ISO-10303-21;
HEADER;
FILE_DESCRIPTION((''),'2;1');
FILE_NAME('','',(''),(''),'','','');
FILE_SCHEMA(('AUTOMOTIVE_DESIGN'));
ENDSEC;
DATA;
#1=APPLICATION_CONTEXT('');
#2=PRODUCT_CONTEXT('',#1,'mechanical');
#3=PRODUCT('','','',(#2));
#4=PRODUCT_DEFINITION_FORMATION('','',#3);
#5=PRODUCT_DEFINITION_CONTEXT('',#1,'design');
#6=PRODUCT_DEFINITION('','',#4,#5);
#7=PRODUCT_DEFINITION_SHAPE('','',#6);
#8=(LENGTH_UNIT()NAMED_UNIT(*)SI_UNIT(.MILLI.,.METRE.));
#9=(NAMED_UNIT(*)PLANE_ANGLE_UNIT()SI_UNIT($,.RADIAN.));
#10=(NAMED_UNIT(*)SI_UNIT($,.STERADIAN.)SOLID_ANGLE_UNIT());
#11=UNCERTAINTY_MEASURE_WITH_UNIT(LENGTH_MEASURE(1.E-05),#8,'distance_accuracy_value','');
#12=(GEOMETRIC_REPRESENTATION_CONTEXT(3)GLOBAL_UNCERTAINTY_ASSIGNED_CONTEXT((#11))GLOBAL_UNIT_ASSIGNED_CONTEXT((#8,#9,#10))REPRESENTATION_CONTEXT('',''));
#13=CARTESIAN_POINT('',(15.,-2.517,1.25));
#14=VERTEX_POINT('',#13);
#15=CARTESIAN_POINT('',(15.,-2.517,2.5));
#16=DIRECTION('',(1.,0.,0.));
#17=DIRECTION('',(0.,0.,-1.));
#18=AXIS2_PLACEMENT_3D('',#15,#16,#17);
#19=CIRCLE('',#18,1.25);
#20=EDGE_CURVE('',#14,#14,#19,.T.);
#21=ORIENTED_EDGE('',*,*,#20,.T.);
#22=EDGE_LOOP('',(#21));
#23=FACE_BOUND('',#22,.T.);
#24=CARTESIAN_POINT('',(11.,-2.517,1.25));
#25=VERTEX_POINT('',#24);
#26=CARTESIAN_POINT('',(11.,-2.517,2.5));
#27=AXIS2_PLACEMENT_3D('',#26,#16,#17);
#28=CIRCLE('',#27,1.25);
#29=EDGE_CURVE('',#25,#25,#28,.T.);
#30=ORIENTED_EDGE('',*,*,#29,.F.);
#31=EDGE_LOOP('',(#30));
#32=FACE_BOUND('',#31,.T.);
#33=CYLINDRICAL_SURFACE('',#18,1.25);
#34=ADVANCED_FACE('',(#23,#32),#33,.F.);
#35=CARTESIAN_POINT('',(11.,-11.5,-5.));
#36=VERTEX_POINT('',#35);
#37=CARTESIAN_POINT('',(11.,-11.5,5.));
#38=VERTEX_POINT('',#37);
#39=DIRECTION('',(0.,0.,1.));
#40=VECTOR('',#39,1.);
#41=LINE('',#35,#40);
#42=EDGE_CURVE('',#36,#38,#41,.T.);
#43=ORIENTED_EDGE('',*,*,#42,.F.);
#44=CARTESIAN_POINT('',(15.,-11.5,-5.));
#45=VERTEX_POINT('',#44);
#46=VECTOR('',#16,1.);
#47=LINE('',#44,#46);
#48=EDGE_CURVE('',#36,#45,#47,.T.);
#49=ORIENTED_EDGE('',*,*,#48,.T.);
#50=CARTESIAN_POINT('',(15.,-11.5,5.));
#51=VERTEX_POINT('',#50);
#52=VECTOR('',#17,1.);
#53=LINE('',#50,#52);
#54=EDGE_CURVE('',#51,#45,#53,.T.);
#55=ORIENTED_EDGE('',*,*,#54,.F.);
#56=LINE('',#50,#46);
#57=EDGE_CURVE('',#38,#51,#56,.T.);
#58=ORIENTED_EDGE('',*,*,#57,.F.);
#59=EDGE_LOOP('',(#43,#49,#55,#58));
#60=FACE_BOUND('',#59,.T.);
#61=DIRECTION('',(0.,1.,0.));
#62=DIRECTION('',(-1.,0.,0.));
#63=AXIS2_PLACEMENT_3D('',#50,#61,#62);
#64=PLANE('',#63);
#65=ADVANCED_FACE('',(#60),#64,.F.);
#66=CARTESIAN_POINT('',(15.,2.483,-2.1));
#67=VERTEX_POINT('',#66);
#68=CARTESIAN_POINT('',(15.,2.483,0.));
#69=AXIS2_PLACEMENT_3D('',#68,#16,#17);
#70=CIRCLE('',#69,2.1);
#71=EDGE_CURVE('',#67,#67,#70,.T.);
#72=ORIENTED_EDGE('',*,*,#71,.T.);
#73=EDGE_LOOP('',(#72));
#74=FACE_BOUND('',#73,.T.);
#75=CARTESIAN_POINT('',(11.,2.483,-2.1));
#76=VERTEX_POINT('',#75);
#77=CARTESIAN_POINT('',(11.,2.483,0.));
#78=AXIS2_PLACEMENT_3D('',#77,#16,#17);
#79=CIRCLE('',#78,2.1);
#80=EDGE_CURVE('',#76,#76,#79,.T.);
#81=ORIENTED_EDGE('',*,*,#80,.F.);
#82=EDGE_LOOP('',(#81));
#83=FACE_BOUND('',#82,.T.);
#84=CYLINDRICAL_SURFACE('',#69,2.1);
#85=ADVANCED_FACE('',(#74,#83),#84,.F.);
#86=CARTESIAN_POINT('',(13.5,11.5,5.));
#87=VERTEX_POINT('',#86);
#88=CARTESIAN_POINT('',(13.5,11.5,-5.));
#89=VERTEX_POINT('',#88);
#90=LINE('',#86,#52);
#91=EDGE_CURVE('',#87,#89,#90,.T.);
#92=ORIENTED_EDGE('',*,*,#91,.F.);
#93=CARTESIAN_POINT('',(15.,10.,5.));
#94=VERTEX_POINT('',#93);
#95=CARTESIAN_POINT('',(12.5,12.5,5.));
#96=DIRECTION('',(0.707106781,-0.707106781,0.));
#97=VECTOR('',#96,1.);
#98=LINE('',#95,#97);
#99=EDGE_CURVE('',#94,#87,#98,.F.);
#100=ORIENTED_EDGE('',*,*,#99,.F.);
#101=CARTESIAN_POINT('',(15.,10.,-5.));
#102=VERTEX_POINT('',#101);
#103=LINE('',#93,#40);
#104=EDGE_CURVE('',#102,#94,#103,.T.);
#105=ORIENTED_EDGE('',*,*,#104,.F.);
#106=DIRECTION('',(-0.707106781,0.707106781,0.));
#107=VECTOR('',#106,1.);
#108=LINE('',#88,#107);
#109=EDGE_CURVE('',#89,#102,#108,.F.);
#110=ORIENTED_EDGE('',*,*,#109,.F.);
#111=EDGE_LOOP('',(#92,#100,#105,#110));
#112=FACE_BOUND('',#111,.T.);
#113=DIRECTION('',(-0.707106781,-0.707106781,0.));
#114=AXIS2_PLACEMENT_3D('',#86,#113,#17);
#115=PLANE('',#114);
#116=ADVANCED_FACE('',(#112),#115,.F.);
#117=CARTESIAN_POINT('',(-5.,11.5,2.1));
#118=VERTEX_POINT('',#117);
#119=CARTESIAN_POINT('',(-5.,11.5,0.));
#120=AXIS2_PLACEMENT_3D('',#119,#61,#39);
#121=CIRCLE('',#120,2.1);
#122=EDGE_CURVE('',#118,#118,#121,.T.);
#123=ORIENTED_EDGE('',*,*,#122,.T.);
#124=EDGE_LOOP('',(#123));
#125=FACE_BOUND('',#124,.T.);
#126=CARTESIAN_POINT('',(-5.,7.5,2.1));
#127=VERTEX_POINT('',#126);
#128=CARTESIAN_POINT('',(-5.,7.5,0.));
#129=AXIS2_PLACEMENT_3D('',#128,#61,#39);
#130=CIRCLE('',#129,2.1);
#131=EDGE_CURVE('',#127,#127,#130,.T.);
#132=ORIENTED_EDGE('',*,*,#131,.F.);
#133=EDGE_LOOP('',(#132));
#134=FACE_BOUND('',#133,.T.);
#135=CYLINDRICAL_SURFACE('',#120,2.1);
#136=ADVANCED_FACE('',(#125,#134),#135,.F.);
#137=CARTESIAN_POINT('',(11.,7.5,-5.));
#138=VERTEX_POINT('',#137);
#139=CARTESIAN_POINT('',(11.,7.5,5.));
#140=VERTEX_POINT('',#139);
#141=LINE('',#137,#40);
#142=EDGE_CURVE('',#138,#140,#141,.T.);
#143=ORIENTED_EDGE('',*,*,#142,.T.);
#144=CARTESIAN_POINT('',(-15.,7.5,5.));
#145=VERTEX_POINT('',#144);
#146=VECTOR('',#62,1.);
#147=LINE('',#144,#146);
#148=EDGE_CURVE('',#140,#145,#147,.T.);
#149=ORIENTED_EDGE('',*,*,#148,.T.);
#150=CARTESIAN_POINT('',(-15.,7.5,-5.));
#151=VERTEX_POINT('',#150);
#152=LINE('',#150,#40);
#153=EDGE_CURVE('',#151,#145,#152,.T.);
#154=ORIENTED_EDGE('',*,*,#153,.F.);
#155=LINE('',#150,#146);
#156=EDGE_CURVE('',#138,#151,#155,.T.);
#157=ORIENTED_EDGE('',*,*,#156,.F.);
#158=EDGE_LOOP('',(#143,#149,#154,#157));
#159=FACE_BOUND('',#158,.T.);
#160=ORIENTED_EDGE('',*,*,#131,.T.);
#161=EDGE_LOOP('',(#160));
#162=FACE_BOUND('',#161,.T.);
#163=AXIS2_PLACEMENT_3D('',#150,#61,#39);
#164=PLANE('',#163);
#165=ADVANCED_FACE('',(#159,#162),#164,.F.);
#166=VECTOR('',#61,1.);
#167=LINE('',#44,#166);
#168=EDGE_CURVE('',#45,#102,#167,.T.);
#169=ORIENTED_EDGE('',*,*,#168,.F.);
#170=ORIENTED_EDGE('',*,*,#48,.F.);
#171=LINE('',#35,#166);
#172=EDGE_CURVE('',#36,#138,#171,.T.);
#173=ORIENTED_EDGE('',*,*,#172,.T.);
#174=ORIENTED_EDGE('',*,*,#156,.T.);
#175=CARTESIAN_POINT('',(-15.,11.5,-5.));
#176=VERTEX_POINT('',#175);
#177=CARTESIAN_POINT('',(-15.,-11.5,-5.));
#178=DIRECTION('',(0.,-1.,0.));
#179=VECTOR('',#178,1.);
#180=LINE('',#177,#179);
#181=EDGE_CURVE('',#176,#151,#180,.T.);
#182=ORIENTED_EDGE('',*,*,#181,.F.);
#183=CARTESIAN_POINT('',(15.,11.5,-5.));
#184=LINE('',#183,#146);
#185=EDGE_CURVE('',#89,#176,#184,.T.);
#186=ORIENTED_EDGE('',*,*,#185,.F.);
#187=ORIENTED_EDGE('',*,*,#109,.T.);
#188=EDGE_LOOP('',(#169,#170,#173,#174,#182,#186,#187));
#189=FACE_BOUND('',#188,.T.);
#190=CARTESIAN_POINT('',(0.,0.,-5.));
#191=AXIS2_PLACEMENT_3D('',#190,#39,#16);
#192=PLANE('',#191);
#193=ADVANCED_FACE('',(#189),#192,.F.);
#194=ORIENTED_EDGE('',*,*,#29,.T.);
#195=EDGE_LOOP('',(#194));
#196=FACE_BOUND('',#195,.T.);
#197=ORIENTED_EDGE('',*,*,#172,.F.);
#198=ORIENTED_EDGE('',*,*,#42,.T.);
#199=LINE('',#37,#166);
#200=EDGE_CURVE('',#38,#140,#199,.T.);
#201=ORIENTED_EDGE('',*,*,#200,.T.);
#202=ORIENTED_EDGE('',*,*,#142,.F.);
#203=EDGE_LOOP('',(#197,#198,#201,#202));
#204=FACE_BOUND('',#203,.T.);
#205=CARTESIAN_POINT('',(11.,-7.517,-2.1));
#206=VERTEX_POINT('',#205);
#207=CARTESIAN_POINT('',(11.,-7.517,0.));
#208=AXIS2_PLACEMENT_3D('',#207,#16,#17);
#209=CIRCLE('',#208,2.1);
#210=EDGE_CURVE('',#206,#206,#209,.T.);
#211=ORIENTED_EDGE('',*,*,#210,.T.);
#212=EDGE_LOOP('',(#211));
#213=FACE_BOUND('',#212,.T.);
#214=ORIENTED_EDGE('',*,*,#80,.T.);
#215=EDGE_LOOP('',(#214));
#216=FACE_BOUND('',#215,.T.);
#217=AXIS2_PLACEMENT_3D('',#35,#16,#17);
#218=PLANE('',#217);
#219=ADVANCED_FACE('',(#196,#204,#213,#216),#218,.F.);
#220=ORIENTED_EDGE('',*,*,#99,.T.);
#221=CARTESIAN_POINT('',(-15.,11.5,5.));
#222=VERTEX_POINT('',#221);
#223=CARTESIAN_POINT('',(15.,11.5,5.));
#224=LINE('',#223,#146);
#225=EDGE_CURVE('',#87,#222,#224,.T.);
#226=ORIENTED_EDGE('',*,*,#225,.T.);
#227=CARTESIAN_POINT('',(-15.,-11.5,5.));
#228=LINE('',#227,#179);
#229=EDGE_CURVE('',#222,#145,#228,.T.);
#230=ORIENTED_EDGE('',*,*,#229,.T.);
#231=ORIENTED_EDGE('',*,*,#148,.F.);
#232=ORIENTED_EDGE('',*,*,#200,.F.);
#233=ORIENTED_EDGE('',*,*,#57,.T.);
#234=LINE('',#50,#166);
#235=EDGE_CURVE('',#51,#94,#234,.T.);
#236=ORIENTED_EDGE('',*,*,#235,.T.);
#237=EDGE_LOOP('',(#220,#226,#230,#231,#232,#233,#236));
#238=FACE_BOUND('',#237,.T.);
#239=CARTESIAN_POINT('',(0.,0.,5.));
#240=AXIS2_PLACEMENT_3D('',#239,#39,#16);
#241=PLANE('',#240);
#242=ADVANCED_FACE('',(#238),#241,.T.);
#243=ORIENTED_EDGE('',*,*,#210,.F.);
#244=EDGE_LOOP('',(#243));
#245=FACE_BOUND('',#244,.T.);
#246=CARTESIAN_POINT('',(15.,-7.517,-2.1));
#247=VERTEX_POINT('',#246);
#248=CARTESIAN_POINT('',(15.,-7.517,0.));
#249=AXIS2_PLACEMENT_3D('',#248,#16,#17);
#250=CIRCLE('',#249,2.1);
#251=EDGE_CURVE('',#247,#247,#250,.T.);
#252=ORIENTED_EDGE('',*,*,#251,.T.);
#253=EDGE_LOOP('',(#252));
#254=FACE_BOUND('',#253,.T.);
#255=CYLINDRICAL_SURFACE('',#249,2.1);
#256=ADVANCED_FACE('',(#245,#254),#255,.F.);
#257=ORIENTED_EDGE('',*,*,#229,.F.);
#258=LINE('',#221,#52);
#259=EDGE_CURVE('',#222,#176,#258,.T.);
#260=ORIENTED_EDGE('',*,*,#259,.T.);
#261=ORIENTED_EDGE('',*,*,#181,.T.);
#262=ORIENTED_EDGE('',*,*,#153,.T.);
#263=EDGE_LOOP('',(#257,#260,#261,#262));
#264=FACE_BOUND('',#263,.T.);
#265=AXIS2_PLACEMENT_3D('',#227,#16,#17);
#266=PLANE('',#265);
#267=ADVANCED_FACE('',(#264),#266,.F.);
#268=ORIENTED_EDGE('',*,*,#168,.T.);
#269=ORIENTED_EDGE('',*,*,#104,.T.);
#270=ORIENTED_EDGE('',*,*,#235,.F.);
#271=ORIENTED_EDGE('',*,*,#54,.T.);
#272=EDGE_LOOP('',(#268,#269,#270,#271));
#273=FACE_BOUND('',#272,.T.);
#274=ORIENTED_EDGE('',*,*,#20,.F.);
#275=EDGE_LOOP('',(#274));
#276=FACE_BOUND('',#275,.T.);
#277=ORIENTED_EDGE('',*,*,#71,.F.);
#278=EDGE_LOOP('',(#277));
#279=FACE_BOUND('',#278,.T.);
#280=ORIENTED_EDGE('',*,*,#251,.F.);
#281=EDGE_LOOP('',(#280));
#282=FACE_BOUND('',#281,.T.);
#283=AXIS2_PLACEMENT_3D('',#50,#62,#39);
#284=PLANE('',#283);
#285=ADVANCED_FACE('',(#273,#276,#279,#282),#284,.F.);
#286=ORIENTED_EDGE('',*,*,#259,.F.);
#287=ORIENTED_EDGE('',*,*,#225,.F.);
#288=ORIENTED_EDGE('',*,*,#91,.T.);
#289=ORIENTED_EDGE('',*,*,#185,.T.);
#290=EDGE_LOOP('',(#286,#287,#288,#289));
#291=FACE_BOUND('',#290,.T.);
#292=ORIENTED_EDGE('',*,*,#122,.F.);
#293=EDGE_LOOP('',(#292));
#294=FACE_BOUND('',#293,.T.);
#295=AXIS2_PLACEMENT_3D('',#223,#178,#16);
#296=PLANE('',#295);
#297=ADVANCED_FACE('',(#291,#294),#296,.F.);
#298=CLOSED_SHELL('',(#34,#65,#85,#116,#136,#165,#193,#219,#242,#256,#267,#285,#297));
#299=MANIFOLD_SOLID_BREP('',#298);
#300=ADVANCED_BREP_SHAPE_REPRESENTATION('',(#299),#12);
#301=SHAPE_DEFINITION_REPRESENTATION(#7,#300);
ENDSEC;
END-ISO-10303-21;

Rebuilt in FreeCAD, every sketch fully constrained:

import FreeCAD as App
import Part
import Sketcher
Q = App.Units.Quantity


def edges_at(feature, points):
    """Names of the edges that pass closest to the given points."""
    edges = feature.Shape.Edges
    near = lambda p: min(range(len(edges)), key=lambda i: edges[i].distToShape(Part.Vertex(*p))[0])
    return sorted({f"Edge{near(p) + 1}" for p in points})

doc = App.newDocument("Part")
body = doc.addObject("PartDesign::Body", "Body")

# Sketch on XY plane
sketch1 = body.newObject("Sketcher::SketchObject", "Sketch")
sketch1.AttachmentSupport = (doc.getObject("XY_Plane"), [""])
sketch1.MapMode = "FlatFace"
sketch1.addGeometry(Part.LineSegment(App.Vector(-15, 12, 0), App.Vector(-15, -12, 0)), False)
sketch1.addGeometry(Part.LineSegment(App.Vector(-15, -12, 0), App.Vector(15, -12, 0)), False)
sketch1.addGeometry(Part.LineSegment(App.Vector(15, -12, 0), App.Vector(15, 12, 0)), False)
sketch1.addGeometry(Part.LineSegment(App.Vector(15, 12, 0), App.Vector(-15, 12, 0)), False)
sketch1.addConstraint(Sketcher.Constraint("Coincident", 0, 2, 1, 1))
sketch1.addConstraint(Sketcher.Constraint("Coincident", 1, 2, 2, 1))
sketch1.addConstraint(Sketcher.Constraint("Coincident", 2, 2, 3, 1))
sketch1.addConstraint(Sketcher.Constraint("Coincident", 3, 2, 0, 1))
sketch1.addConstraint(Sketcher.Constraint("Vertical", 0))
sketch1.addConstraint(Sketcher.Constraint("Horizontal", 1))
sketch1.addConstraint(Sketcher.Constraint("Vertical", 2))
sketch1.addConstraint(Sketcher.Constraint("Horizontal", 3))
sketch1.addConstraint(Sketcher.Constraint("Symmetric", 0, 2, 2, 2, -1, 1))
sketch1.addConstraint(Sketcher.Constraint("DistanceX", 1, 1, 1, 2, Q("30 mm")))
sketch1.addConstraint(Sketcher.Constraint("DistanceY", 0, 2, 0, 1, Q("23 mm")))
pad1 = body.newObject("PartDesign::Pad", "Pad")
pad1.Profile = sketch1
pad1.Length = 10
pad1.Midplane = True

# Sketch on XY plane
sketch2 = body.newObject("Sketcher::SketchObject", "Sketch001")
sketch2.AttachmentSupport = (doc.getObject("XY_Plane"), [""])
sketch2.MapMode = "FlatFace"
sketch2.AttachmentOffset = App.Placement(App.Vector(0, 0, 5), App.Rotation())
sketch2.addGeometry(Part.LineSegment(App.Vector(-15, 8, 0), App.Vector(-15, -12, 0)), False)
sketch2.addGeometry(Part.LineSegment(App.Vector(-15, -12, 0), App.Vector(11, -12, 0)), False)
sketch2.addGeometry(Part.LineSegment(App.Vector(11, -12, 0), App.Vector(11, 8, 0)), False)
sketch2.addGeometry(Part.LineSegment(App.Vector(11, 8, 0), App.Vector(-15, 8, 0)), False)
sketch2.addConstraint(Sketcher.Constraint("Coincident", 0, 2, 1, 1))
sketch2.addConstraint(Sketcher.Constraint("Coincident", 1, 2, 2, 1))
sketch2.addConstraint(Sketcher.Constraint("Coincident", 2, 2, 3, 1))
sketch2.addConstraint(Sketcher.Constraint("Coincident", 3, 2, 0, 1))
sketch2.addConstraint(Sketcher.Constraint("Vertical", 0))
sketch2.addConstraint(Sketcher.Constraint("Horizontal", 1))
sketch2.addConstraint(Sketcher.Constraint("Vertical", 2))
sketch2.addConstraint(Sketcher.Constraint("Horizontal", 3))
sketch2.addConstraint(Sketcher.Constraint("DistanceX", 1, 1, 1, 2, Q("26 mm")))
sketch2.addConstraint(Sketcher.Constraint("DistanceY", 0, 2, 0, 1, Q("19 mm")))
sketch2.addConstraint(Sketcher.Constraint("DistanceX", 0, 2, -1, 1, Q("15 mm")))
sketch2.addConstraint(Sketcher.Constraint("DistanceY", 0, 2, -1, 1, Q("11.5 mm")))
pocket1 = body.newObject("PartDesign::Pocket", "Pocket")
pocket1.Profile = sketch2
pocket1.Type = "ThroughAll"
doc.recompute()

chamfer = body.newObject("PartDesign::Chamfer", "Chamfer")
chamfer.Base = (pocket1, edges_at(pocket1, [(15, 11.5, 0)]))
chamfer.Size = 1.5

# Sketch on XZ plane
sketch3 = body.newObject("Sketcher::SketchObject", "Sketch002")
sketch3.AttachmentSupport = (doc.getObject("XZ_Plane"), [""])
sketch3.MapMode = "FlatFace"
sketch3.AttachmentOffset = App.Placement(App.Vector(0, 0, -11.5), App.Rotation())
sketch3.addGeometry(Part.Circle(App.Vector(-5, 0, 0), App.Vector(0, 0, 1), 2.1), False)
sketch3.addConstraint(Sketcher.Constraint("PointOnObject", 0, 3, -1))
sketch3.addConstraint(Sketcher.Constraint("Diameter", 0, Q("4.2 mm")))
sketch3.addConstraint(Sketcher.Constraint("DistanceX", 0, 3, -1, 1, Q("5 mm")))
doc.recompute()
hole = body.newObject("PartDesign::Hole", "Hole")
hole.Profile = sketch3
hole.ThreadType = "None"
hole.Diameter = 4.2
hole.DepthType = "ThroughAll"
hole.Reversed = True

# Sketch on YZ plane
sketch4 = body.newObject("Sketcher::SketchObject", "Sketch003")
sketch4.AttachmentSupport = (doc.getObject("YZ_Plane"), [""])
sketch4.MapMode = "FlatFace"
sketch4.AttachmentOffset = App.Placement(App.Vector(0, 0, 15), App.Rotation())
sketch4.addGeometry(Part.Circle(App.Vector(-7.5, 0, 0), App.Vector(0, 0, 1), 2.1), False)
sketch4.addGeometry(Part.Circle(App.Vector(2.5, 0, 0), App.Vector(0, 0, 1), 2.1), False)
sketch4.addConstraint(Sketcher.Constraint("Equal", 0, 1))
sketch4.addConstraint(Sketcher.Constraint("PointOnObject", 0, 3, -1))
sketch4.addConstraint(Sketcher.Constraint("PointOnObject", 1, 3, -1))
sketch4.addConstraint(Sketcher.Constraint("Diameter", 0, Q("4.2 mm")))
sketch4.addConstraint(Sketcher.Constraint("DistanceX", 0, 3, 1, 3, Q("10 mm")))
sketch4.addConstraint(Sketcher.Constraint("DistanceX", 0, 3, -1, 1, Q("7.517 mm")))
doc.recompute()
hole2 = body.newObject("PartDesign::Hole", "Hole001")
hole2.Profile = sketch4
hole2.ThreadType = "None"
hole2.Diameter = 4.2
hole2.DepthType = "ThroughAll"

# Sketch on YZ plane
sketch5 = body.newObject("Sketcher::SketchObject", "Sketch004")
sketch5.AttachmentSupport = (doc.getObject("YZ_Plane"), [""])
sketch5.MapMode = "FlatFace"
sketch5.AttachmentOffset = App.Placement(App.Vector(0, 0, 15), App.Rotation())
sketch5.addGeometry(Part.Circle(App.Vector(-2.5, 2.5, 0), App.Vector(0, 0, 1), 1.2), False)
sketch5.addConstraint(Sketcher.Constraint("Diameter", 0, Q("2.5 mm")))
sketch5.addConstraint(Sketcher.Constraint("DistanceY", -1, 1, 0, 3, Q("2.5 mm")))
sketch5.addConstraint(Sketcher.Constraint("DistanceX", 0, 3, -1, 1, Q("2.517 mm")))
doc.recompute()
hole3 = body.newObject("PartDesign::Hole", "Hole002")
hole3.Profile = sketch5
hole3.ThreadType = "None"
hole3.Diameter = 2.5
hole3.DepthType = "ThroughAll"

doc.recompute()
